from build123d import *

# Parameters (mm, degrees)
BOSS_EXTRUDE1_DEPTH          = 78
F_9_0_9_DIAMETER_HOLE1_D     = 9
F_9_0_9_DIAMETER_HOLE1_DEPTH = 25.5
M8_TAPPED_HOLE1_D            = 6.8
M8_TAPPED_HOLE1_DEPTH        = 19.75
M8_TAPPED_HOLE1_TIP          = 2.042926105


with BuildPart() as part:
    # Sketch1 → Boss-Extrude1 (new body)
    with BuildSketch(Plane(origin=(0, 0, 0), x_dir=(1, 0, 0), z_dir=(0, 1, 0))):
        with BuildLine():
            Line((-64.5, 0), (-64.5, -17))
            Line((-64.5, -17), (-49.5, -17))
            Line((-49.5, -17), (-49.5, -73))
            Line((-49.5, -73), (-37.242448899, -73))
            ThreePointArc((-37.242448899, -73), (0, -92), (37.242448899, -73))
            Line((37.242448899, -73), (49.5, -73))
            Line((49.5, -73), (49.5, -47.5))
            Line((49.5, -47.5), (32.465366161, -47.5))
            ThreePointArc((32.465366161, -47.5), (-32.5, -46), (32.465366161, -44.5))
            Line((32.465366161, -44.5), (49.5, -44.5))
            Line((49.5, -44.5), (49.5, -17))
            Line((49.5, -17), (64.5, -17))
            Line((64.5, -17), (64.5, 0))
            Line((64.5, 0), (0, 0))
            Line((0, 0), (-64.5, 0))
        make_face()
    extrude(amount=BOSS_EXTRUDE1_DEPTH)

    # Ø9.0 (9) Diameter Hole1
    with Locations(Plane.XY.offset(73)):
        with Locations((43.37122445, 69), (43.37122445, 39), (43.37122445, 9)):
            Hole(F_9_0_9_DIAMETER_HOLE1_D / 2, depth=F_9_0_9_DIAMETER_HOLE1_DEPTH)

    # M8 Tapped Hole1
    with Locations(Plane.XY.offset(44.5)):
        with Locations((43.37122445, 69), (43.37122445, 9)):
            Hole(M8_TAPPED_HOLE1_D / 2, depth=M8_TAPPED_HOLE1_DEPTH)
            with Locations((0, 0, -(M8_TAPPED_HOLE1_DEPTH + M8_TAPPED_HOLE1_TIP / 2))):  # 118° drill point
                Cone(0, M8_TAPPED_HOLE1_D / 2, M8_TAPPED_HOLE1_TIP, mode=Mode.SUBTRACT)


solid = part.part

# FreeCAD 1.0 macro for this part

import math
import FreeCAD as App
import Part
import Sketcher
from FreeCAD import Vector

doc = App.newDocument("Part")
params = doc.addObject("Spreadsheet::Sheet", "Params")
for row, (alias, value) in enumerate([
    ("sketch1_radius", "46 mm"),
    ("sketch1_radius2", "32.5 mm"),
    ("sketch1_width", "15 mm"),
    ("sketch1_width2", "129 mm"),
    ("sketch1_height", "17 mm"),
    ("pad1_length", "78 mm"),
    ("sketch2_diameter", "9 mm"),
    ("hole_diameter", "9 mm"),
    ("hole_depth", "25.5 mm"),
    ("sketch3_diameter", "6.8 mm"),
    ("hole2_diameter", "6.8 mm"),
    ("hole2_depth", "19.75 mm"),
], start=1):
    params.set(f"A{row}", alias)
    params.set(f"B{row}", "=" + value)
    params.setAlias(f"B{row}", alias)

body = doc.addObject("PartDesign::Body", "Body")

# Sketch on XZ plane
sketch1 = body.newObject("Sketcher::SketchObject", "Sketch")
sketch1.AttachmentSupport = (doc.getObject("XZ_Plane"), [""])
sketch1.MapMode = "FlatFace"
sketch1.addGeometry([
    Part.LineSegment(Vector(-64.5, 0, 0), Vector(-64.5, 17, 0)),  # 0
    Part.LineSegment(Vector(-64.5, 17, 0), Vector(-49.5, 17, 0)),  # 1
    Part.LineSegment(Vector(-49.5, 17, 0), Vector(-49.5, 73, 0)),  # 2
    Part.LineSegment(Vector(-49.5, 73, 0), Vector(-37.242449, 73, 0)),  # 3
    Part.ArcOfCircle(Part.Circle(Vector(0, 46, 0), Vector(0, 0, 1), 46), math.radians(35.94133), math.radians(144.05867)),  # 4
    Part.LineSegment(Vector(37.242449, 73, 0), Vector(49.5, 73, 0)),  # 5
    Part.LineSegment(Vector(49.5, 73, 0), Vector(49.5, 47.5, 0)),  # 6
    Part.LineSegment(Vector(49.5, 47.5, 0), Vector(32.465366, 47.5, 0)),  # 7
    Part.ArcOfCircle(Part.Circle(Vector(0, 46, 0), Vector(0, 0, 1), 32.5), math.radians(2.64536), math.radians(357.35464)),  # 8
    Part.LineSegment(Vector(32.465366, 44.5, 0), Vector(49.5, 44.5, 0)),  # 9
    Part.LineSegment(Vector(49.5, 44.5, 0), Vector(49.5, 17, 0)),  # 10
    Part.LineSegment(Vector(49.5, 17, 0), Vector(64.5, 17, 0)),  # 11
    Part.LineSegment(Vector(64.5, 17, 0), Vector(64.5, 0, 0)),  # 12
    Part.LineSegment(Vector(64.5, 0, 0), Vector(-64.5, 0, 0)),  # 13
], False)
sketch1.addConstraint([
    Sketcher.Constraint("Coincident", 0, 2, 1, 1),
    Sketcher.Constraint("Coincident", 1, 2, 2, 1),
    Sketcher.Constraint("Coincident", 2, 2, 3, 1),
    Sketcher.Constraint("Coincident", 3, 2, 4, 2),
    Sketcher.Constraint("Coincident", 4, 1, 5, 1),
    Sketcher.Constraint("Coincident", 5, 2, 6, 1),
    Sketcher.Constraint("Coincident", 6, 2, 7, 1),
    Sketcher.Constraint("Coincident", 7, 2, 8, 1),
    Sketcher.Constraint("Coincident", 8, 2, 9, 1),
    Sketcher.Constraint("Coincident", 9, 2, 10, 1),
    Sketcher.Constraint("Coincident", 10, 2, 11, 1),
    Sketcher.Constraint("Coincident", 11, 2, 12, 1),
    Sketcher.Constraint("Coincident", 12, 2, 13, 1),
    Sketcher.Constraint("Coincident", 13, 2, 0, 1),
    Sketcher.Constraint("Vertical", 0),
    Sketcher.Constraint("Horizontal", 1),
    Sketcher.Constraint("Vertical", 2),
    Sketcher.Constraint("Horizontal", 3),
    Sketcher.Constraint("Horizontal", 5),
    Sketcher.Constraint("Vertical", 6),
    Sketcher.Constraint("Horizontal", 7),
    Sketcher.Constraint("Horizontal", 9),
    Sketcher.Constraint("Vertical", 10),
    Sketcher.Constraint("Horizontal", 11),
    Sketcher.Constraint("Vertical", 12),
    Sketcher.Constraint("Horizontal", 13),
    Sketcher.Constraint("Coincident", 8, 3, 4, 3),
    Sketcher.Constraint("Symmetric", 12, 2, 13, 2, -1, 1),
    Sketcher.Constraint("Symmetric", 3, 2, 4, 1, -2),
    Sketcher.Constraint("Symmetric", 1, 2, 10, 2, -2),
    Sketcher.Constraint("Vertical", 7, 2, 8, 2),
    Sketcher.Constraint("Vertical", 6, 2, 9, 2),
    Sketcher.Constraint("Radius", 4, 46.0),
    Sketcher.Constraint("Radius", 8, 32.5),
    Sketcher.Constraint("DistanceX", 1, 1, 1, 2, 15.0),
    Sketcher.Constraint("DistanceX", 13, 2, 13, 1, 129.0),
    Sketcher.Constraint("DistanceY", 0, 1, 0, 2, 17.0),
    Sketcher.Constraint("DistanceY", 2, 1, 2, 2, 56.0),
    Sketcher.Constraint("DistanceY", 6, 2, 6, 1, 25.5),
    Sketcher.Constraint("DistanceY", 10, 2, 10, 1, 27.5),
])
sketch1.setExpression("Constraints[32]", "Params.sketch1_radius")
sketch1.setExpression("Constraints[33]", "Params.sketch1_radius2")
sketch1.setExpression("Constraints[34]", "Params.sketch1_width")
sketch1.setExpression("Constraints[35]", "Params.sketch1_width2")
sketch1.setExpression("Constraints[36]", "Params.sketch1_height")
pad1 = body.newObject("PartDesign::Pad", "Pad")
pad1.Profile = sketch1
pad1.setExpression("Length", "Params.pad1_length")
pad1.Reversed = True

# Sketch on XY plane
sketch2 = body.newObject("Sketcher::SketchObject", "Sketch001")
sketch2.AttachmentSupport = (doc.getObject("XY_Plane"), [""])
sketch2.MapMode = "FlatFace"
sketch2.AttachmentOffset = App.Placement(Vector(0, 0, 73), App.Rotation())
sketch2.addGeometry([
    Part.Circle(Vector(43.371224, 69, 0), Vector(0, 0, 1), 4.5),
    Part.Circle(Vector(43.371224, 39, 0), Vector(0, 0, 1), 4.5),
    Part.Circle(Vector(43.371224, 9, 0), Vector(0, 0, 1), 4.5),
], False)
sketch2.addConstraint([
    Sketcher.Constraint("Equal", 0, 1),
    Sketcher.Constraint("Equal", 1, 2),
    Sketcher.Constraint("Vertical", 0, 3, 1, 3),
    Sketcher.Constraint("Vertical", 1, 3, 2, 3),
    Sketcher.Constraint("Diameter", 0, 9.0),
    Sketcher.Constraint("DistanceY", -1, 1, 0, 3, 69.0),
    Sketcher.Constraint("DistanceY", -1, 1, 1, 3, 39.0),
    Sketcher.Constraint("DistanceY", -1, 1, 2, 3, 9.0),
    Sketcher.Constraint("DistanceX", -1, 1, 0, 3, 43.371224),
])
sketch2.setExpression("Constraints[4]", "Params.sketch2_diameter")
doc.recompute()
hole = body.newObject("PartDesign::Hole", "Hole")
hole.Profile = sketch2
hole.ThreadType = "None"
hole.setExpression("Diameter", "Params.hole_diameter")
hole.DepthType = "Dimension"
hole.setExpression("Depth", "Params.hole_depth")
hole.DrillPoint = "Flat"

# Sketch on XY plane
sketch3 = body.newObject("Sketcher::SketchObject", "Sketch002")
sketch3.AttachmentSupport = (doc.getObject("XY_Plane"), [""])
sketch3.MapMode = "FlatFace"
sketch3.AttachmentOffset = App.Placement(Vector(0, 0, 44.5), App.Rotation())
sketch3.addGeometry([
    Part.Circle(Vector(43.371224, 69, 0), Vector(0, 0, 1), 3.4),
    Part.Circle(Vector(43.371224, 9, 0), Vector(0, 0, 1), 3.4),
], False)
sketch3.addConstraint([
    Sketcher.Constraint("Equal", 0, 1),
    Sketcher.Constraint("Vertical", 0, 3, 1, 3),
    Sketcher.Constraint("Diameter", 0, 6.8),
    Sketcher.Constraint("DistanceY", -1, 1, 0, 3, 69.0),
    Sketcher.Constraint("DistanceY", -1, 1, 1, 3, 9.0),
    Sketcher.Constraint("DistanceX", -1, 1, 0, 3, 43.371224),
])
sketch3.setExpression("Constraints[2]", "Params.sketch3_diameter")
doc.recompute()
hole2 = body.newObject("PartDesign::Hole", "Hole001")
hole2.Profile = sketch3
hole2.ThreadType = "None"
hole2.setExpression("Diameter", "Params.hole2_diameter")
hole2.DepthType = "Dimension"
hole2.setExpression("Depth", "Params.hole2_depth")
hole2.DrillPoint = "Angled"
hole2.DrillPointAngle = 118

doc.recompute()
